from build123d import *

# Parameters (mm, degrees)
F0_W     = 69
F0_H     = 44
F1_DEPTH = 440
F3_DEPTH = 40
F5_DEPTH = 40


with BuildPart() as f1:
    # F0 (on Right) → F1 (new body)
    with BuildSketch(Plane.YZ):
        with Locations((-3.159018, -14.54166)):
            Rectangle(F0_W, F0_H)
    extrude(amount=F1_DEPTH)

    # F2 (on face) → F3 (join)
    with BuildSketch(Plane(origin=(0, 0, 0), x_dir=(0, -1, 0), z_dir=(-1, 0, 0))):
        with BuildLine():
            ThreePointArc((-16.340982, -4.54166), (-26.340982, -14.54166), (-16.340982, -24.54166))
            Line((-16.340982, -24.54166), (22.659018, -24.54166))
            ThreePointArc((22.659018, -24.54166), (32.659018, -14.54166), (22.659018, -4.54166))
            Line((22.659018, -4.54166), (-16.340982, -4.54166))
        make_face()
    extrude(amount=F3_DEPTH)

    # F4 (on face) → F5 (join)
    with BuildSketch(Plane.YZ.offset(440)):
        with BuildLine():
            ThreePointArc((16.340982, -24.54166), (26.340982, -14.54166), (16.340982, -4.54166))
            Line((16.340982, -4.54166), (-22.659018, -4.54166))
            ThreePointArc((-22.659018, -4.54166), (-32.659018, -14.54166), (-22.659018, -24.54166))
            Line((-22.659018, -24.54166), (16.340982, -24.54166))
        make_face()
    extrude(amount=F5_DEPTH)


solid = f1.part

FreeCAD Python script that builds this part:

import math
import FreeCAD as App
import Part
import Sketcher

doc = App.newDocument("Part")
params = doc.addObject("Spreadsheet::Sheet", "Params")
for row, (alias, value) in enumerate([
    ("sketch1_width", "69 mm"),
    ("sketch1_height", "44 mm"),
    ("pad1_length", "440 mm"),
    ("sketch2_radius", "10 mm"),
    ("sketch2_width", "39 mm"),
    ("pad2_length", "40 mm"),
    ("sketch3_radius", "10 mm"),
    ("sketch3_width", "39 mm"),
    ("pad3_length", "40 mm"),
], start=1):
    params.set(f"A{row}", alias)
    params.set(f"B{row}", "=" + value)
    params.setAlias(f"B{row}", alias)

body = doc.addObject("PartDesign::Body", "Body")

sketch1 = body.newObject("Sketcher::SketchObject", "Sketch")
sketch1.AttachmentSupport = (doc.getObject("YZ_Plane"), [""])
sketch1.MapMode = "FlatFace"
sketch1.addGeometry([
    Part.LineSegment(App.Vector(-37.659018, 7.45834, 0), App.Vector(-37.659018, -36.54166, 0)),
    Part.LineSegment(App.Vector(-37.659018, -36.54166, 0), App.Vector(31.340982, -36.54166, 0)),
    Part.LineSegment(App.Vector(31.340982, -36.54166, 0), App.Vector(31.340982, 7.45834, 0)),
    Part.LineSegment(App.Vector(31.340982, 7.45834, 0), App.Vector(-37.659018, 7.45834, 0)),
], False)
sketch1.addConstraint([
    Sketcher.Constraint("Coincident", 0, 2, 1, 1),
    Sketcher.Constraint("Coincident", 1, 2, 2, 1),
    Sketcher.Constraint("Coincident", 2, 2, 3, 1),
    Sketcher.Constraint("Coincident", 3, 2, 0, 1),
    Sketcher.Constraint("Vertical", 0),
    Sketcher.Constraint("Horizontal", 1),
    Sketcher.Constraint("Vertical", 2),
    Sketcher.Constraint("Horizontal", 3),
    Sketcher.Constraint("DistanceX", 1, 1, 1, 2, 69.0),
    Sketcher.Constraint("DistanceY", 0, 2, 0, 1, 44.0),
    Sketcher.Constraint("DistanceX", 0, 2, -1, 1, 37.659018),
    Sketcher.Constraint("DistanceY", 0, 2, -1, 1, 36.54166),
])
sketch1.setExpression("Constraints[8]", "Params.sketch1_width")
sketch1.setExpression("Constraints[9]", "Params.sketch1_height")
pad1 = body.newObject("PartDesign::Pad", "Pad")
pad1.Profile = sketch1
pad1.setExpression("Length", "Params.pad1_length")

sketch2 = body.newObject("Sketcher::SketchObject", "Sketch001")
sketch2.AttachmentSupport = (doc.getObject("YZ_Plane"), [""])
sketch2.MapMode = "FlatFace"
sketch2.addGeometry([
    Part.ArcOfCircle(Part.Circle(App.Vector(16.340982, -14.54166, 0), App.Vector(0, 0, 1), 10), math.radians(-90), math.radians(90)),
    Part.LineSegment(App.Vector(16.340982, -24.54166, 0), App.Vector(-22.659018, -24.54166, 0)),
    Part.ArcOfCircle(Part.Circle(App.Vector(-22.659018, -14.54166, 0), App.Vector(0, 0, 1), 10), math.radians(90), math.radians(270)),
    Part.LineSegment(App.Vector(-22.659018, -4.54166, 0), App.Vector(16.340982, -4.54166, 0)),
], False)
sketch2.addConstraint([
    Sketcher.Constraint("Tangent", 0, 1, 1, 1),
    Sketcher.Constraint("Tangent", 1, 2, 2, 2),
    Sketcher.Constraint("Tangent", 2, 1, 3, 1),
    Sketcher.Constraint("Tangent", 3, 2, 0, 2),
    Sketcher.Constraint("Horizontal", 1),
    Sketcher.Constraint("Horizontal", 3),
    Sketcher.Constraint("Radius", 0, 10.0),
    Sketcher.Constraint("DistanceX", 1, 2, 1, 1, 39.0),
    Sketcher.Constraint("DistanceY", 0, 3, -1, 1, 14.54166),
    Sketcher.Constraint("DistanceX", -1, 1, 0, 3, 16.340982),
])
sketch2.setExpression("Constraints[6]", "Params.sketch2_radius")
sketch2.setExpression("Constraints[7]", "Params.sketch2_width")
pad2 = body.newObject("PartDesign::Pad", "Pad001")
pad2.Profile = sketch2
pad2.setExpression("Length", "Params.pad2_length")
pad2.Reversed = True

sketch3 = body.newObject("Sketcher::SketchObject", "Sketch002")
sketch3.AttachmentSupport = (doc.getObject("YZ_Plane"), [""])
sketch3.MapMode = "FlatFace"
sketch3.AttachmentOffset = App.Placement(App.Vector(0, 0, 440), App.Rotation())
sketch3.addGeometry([
    Part.ArcOfCircle(Part.Circle(App.Vector(16.340982, -14.54166, 0), App.Vector(0, 0, 1), 10), math.radians(-90), math.radians(90)),
    Part.LineSegment(App.Vector(16.340982, -4.54166, 0), App.Vector(-22.659018, -4.54166, 0)),
    Part.ArcOfCircle(Part.Circle(App.Vector(-22.659018, -14.54166, 0), App.Vector(0, 0, 1), 10), math.radians(90), math.radians(270)),
    Part.LineSegment(App.Vector(-22.659018, -24.54166, 0), App.Vector(16.340982, -24.54166, 0)),
], False)
sketch3.addConstraint([
    Sketcher.Constraint("Tangent", 0, 2, 1, 1),
    Sketcher.Constraint("Tangent", 1, 2, 2, 1),
    Sketcher.Constraint("Tangent", 2, 2, 3, 1),
    Sketcher.Constraint("Tangent", 3, 2, 0, 1),
    Sketcher.Constraint("Horizontal", 1),
    Sketcher.Constraint("Horizontal", 3),
    Sketcher.Constraint("Radius", 0, 10.0),
    Sketcher.Constraint("DistanceX", 1, 2, 1, 1, 39.0),
    Sketcher.Constraint("DistanceY", 0, 3, -1, 1, 14.54166),
    Sketcher.Constraint("DistanceX", -1, 1, 0, 3, 16.340982),
])
sketch3.setExpression("Constraints[6]", "Params.sketch3_radius")
sketch3.setExpression("Constraints[7]", "Params.sketch3_width")
pad3 = body.newObject("PartDesign::Pad", "Pad002")
pad3.Profile = sketch3
pad3.setExpression("Length", "Params.pad3_length")

doc.recompute()
